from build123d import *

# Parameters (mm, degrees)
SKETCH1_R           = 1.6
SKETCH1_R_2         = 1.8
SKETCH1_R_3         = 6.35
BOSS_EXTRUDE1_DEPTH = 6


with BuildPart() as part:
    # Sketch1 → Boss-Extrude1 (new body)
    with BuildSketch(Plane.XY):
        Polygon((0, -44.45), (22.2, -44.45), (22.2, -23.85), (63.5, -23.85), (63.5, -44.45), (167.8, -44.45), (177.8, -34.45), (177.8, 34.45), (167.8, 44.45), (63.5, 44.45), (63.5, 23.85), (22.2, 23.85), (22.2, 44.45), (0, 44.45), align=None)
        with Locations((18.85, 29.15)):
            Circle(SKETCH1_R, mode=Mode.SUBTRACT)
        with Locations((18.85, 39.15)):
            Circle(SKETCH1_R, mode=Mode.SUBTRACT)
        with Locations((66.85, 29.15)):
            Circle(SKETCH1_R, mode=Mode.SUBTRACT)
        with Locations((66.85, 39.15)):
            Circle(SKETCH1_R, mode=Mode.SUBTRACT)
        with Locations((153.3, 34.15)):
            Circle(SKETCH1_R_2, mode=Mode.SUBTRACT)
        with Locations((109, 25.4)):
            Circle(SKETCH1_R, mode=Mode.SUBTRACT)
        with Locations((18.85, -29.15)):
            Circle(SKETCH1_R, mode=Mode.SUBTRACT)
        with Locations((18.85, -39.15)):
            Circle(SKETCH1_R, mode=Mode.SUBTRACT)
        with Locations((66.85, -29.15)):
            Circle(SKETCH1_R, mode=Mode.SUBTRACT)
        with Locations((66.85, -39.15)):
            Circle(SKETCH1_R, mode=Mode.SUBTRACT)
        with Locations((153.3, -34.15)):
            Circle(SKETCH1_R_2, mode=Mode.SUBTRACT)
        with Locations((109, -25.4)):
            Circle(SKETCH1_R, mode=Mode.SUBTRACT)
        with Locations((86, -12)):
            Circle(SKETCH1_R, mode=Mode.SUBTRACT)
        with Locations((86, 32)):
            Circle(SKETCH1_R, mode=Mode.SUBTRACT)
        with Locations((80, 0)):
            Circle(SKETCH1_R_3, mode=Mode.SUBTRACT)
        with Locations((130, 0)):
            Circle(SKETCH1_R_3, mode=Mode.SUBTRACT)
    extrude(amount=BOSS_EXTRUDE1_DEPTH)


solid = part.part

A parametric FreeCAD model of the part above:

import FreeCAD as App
import Part
import Sketcher

V = App.Vector
Q = App.Units.Quantity

doc = App.newDocument("Part")
body = doc.addObject("PartDesign::Body", "Body")

# Sketch on XY plane
sketch1 = body.newObject("Sketcher::SketchObject", "Sketch")
sketch1.AttachmentSupport = (doc.getObject("XY_Plane"), [""])
sketch1.MapMode = "FlatFace"
sketch1.addGeometry(Part.LineSegment(V(0, -44.45, 0), V(22.2, -44.45, 0)), False)
sketch1.addGeometry(Part.LineSegment(V(22.2, -44.45, 0), V(22.2, -23.85, 0)), False)
sketch1.addGeometry(Part.LineSegment(V(22.2, -23.85, 0), V(63.5, -23.85, 0)), False)
sketch1.addGeometry(Part.LineSegment(V(63.5, -23.85, 0), V(63.5, -44.45, 0)), False)
sketch1.addGeometry(Part.LineSegment(V(63.5, -44.45, 0), V(167.8, -44.45, 0)), False)
sketch1.addGeometry(Part.LineSegment(V(167.8, -44.45, 0), V(177.8, -34.45, 0)), False)
sketch1.addGeometry(Part.LineSegment(V(177.8, -34.45, 0), V(177.8, 34.45, 0)), False)
sketch1.addGeometry(Part.LineSegment(V(177.8, 34.45, 0), V(167.8, 44.45, 0)), False)
sketch1.addGeometry(Part.LineSegment(V(167.8, 44.45, 0), V(63.5, 44.45, 0)), False)
sketch1.addGeometry(Part.LineSegment(V(63.5, 44.45, 0), V(63.5, 23.85, 0)), False)
sketch1.addGeometry(Part.LineSegment(V(63.5, 23.85, 0), V(22.2, 23.85, 0)), False)
sketch1.addGeometry(Part.LineSegment(V(22.2, 23.85, 0), V(22.2, 44.45, 0)), False)
sketch1.addGeometry(Part.LineSegment(V(22.2, 44.45, 0), V(0, 44.45, 0)), False)
sketch1.addGeometry(Part.LineSegment(V(0, 44.45, 0), V(0, -44.45, 0)), False)
sketch1.addGeometry(Part.Circle(V(18.85, -39.15, 0), V(0, 0, 1), 1.6), False)
sketch1.addGeometry(Part.Circle(V(18.85, -29.15, 0), V(0, 0, 1), 1.6), False)
sketch1.addGeometry(Part.Circle(V(66.85, -39.15, 0), V(0, 0, 1), 1.6), False)
sketch1.addGeometry(Part.Circle(V(66.85, -29.15, 0), V(0, 0, 1), 1.6), False)
sketch1.addGeometry(Part.Circle(V(86, -12, 0), V(0, 0, 1), 1.6), False)
sketch1.addGeometry(Part.Circle(V(109, -25.4, 0), V(0, 0, 1), 1.6), False)
sketch1.addGeometry(Part.Circle(V(153.3, -34.15, 0), V(0, 0, 1), 1.8), False)
sketch1.addGeometry(Part.Circle(V(80, 0, 0), V(0, 0, 1), 6.35), False)
sketch1.addGeometry(Part.Circle(V(18.85, 29.15, 0), V(0, 0, 1), 1.6), False)
sketch1.addGeometry(Part.Circle(V(18.85, 39.15, 0), V(0, 0, 1), 1.6), False)
sketch1.addGeometry(Part.Circle(V(66.85, 29.15, 0), V(0, 0, 1), 1.6), False)
sketch1.addGeometry(Part.Circle(V(66.85, 39.15, 0), V(0, 0, 1), 1.6), False)
sketch1.addGeometry(Part.Circle(V(86, 32, 0), V(0, 0, 1), 1.6), False)
sketch1.addGeometry(Part.Circle(V(130, 0, 0), V(0, 0, 1), 6.35), False)
sketch1.addGeometry(Part.Circle(V(109, 25.4, 0), V(0, 0, 1), 1.6), False)
sketch1.addGeometry(Part.Circle(V(153.3, 34.15, 0), V(0, 0, 1), 1.8), False)
sketch1.addConstraint(Sketcher.Constraint("Coincident", 0, 2, 1, 1))
sketch1.addConstraint(Sketcher.Constraint("Coincident", 1, 2, 2, 1))
sketch1.addConstraint(Sketcher.Constraint("Coincident", 2, 2, 3, 1))
sketch1.addConstraint(Sketcher.Constraint("Coincident", 3, 2, 4, 1))
sketch1.addConstraint(Sketcher.Constraint("Coincident", 4, 2, 5, 1))
sketch1.addConstraint(Sketcher.Constraint("Coincident", 5, 2, 6, 1))
sketch1.addConstraint(Sketcher.Constraint("Coincident", 6, 2, 7, 1))
sketch1.addConstraint(Sketcher.Constraint("Coincident", 7, 2, 8, 1))
sketch1.addConstraint(Sketcher.Constraint("Coincident", 8, 2, 9, 1))
sketch1.addConstraint(Sketcher.Constraint("Coincident", 9, 2, 10, 1))
sketch1.addConstraint(Sketcher.Constraint("Coincident", 10, 2, 11, 1))
sketch1.addConstraint(Sketcher.Constraint("Coincident", 11, 2, 12, 1))
sketch1.addConstraint(Sketcher.Constraint("Coincident", 12, 2, 13, 1))
sketch1.addConstraint(Sketcher.Constraint("Coincident", 13, 2, 0, 1))
sketch1.addConstraint(Sketcher.Constraint("Horizontal", 0))
sketch1.addConstraint(Sketcher.Constraint("Vertical", 1))
sketch1.addConstraint(Sketcher.Constraint("Horizontal", 2))
sketch1.addConstraint(Sketcher.Constraint("Vertical", 3))
sketch1.addConstraint(Sketcher.Constraint("Horizontal", 4))
sketch1.addConstraint(Sketcher.Constraint("Vertical", 6))
sketch1.addConstraint(Sketcher.Constraint("Horizontal", 8))
sketch1.addConstraint(Sketcher.Constraint("Vertical", 9))
sketch1.addConstraint(Sketcher.Constraint("Horizontal", 10))
sketch1.addConstraint(Sketcher.Constraint("Vertical", 11))
sketch1.addConstraint(Sketcher.Constraint("Horizontal", 12))
sketch1.addConstraint(Sketcher.Constraint("Vertical", 13))
sketch1.addConstraint(Sketcher.Constraint("Equal", 14, 15))
sketch1.addConstraint(Sketcher.Constraint("Equal", 15, 16))
sketch1.addConstraint(Sketcher.Constraint("Equal", 16, 17))
sketch1.addConstraint(Sketcher.Constraint("Equal", 17, 18))
sketch1.addConstraint(Sketcher.Constraint("Equal", 18, 19))
sketch1.addConstraint(Sketcher.Constraint("Equal", 19, 22))
sketch1.addConstraint(Sketcher.Constraint("Equal", 22, 23))
sketch1.addConstraint(Sketcher.Constraint("Equal", 23, 24))
sketch1.addConstraint(Sketcher.Constraint("Equal", 24, 25))
sketch1.addConstraint(Sketcher.Constraint("Equal", 25, 26))
sketch1.addConstraint(Sketcher.Constraint("Equal", 21, 27))
sketch1.addConstraint(Sketcher.Constraint("Equal", 26, 28))
sketch1.addConstraint(Sketcher.Constraint("Equal", 20, 29))
sketch1.addConstraint(Sketcher.Constraint("Symmetric", 12, 2, 13, 2, -1, 1))
sketch1.addConstraint(Sketcher.Constraint("Symmetric", 15, 3, 22, 3, -1))
sketch1.addConstraint(Sketcher.Constraint("Symmetric", 14, 3, 23, 3, -1))
sketch1.addConstraint(Sketcher.Constraint("Symmetric", 17, 3, 24, 3, -1))
sketch1.addConstraint(Sketcher.Constraint("Symmetric", 16, 3, 25, 3, -1))
sketch1.addConstraint(Sketcher.Constraint("Symmetric", 19, 3, 28, 3, -1))
sketch1.addConstraint(Sketcher.Constraint("Symmetric", 20, 3, 29, 3, -1))
sketch1.addConstraint(Sketcher.Constraint("Symmetric", 4, 2, 7, 2, -1))
sketch1.addConstraint(Sketcher.Constraint("Symmetric", 2, 2, 9, 2, -1))
sketch1.addConstraint(Sketcher.Constraint("PointOnObject", 21, 3, -1))
sketch1.addConstraint(Sketcher.Constraint("PointOnObject", 27, 3, -1))
sketch1.addConstraint(Sketcher.Constraint("Perpendicular", 5, 7))
sketch1.addConstraint(Sketcher.Constraint("Horizontal", 14, 3, 16, 3))
sketch1.addConstraint(Sketcher.Constraint("Horizontal", 15, 3, 17, 3))
sketch1.addConstraint(Sketcher.Constraint("Horizontal", 0, 2, 3, 2))
sketch1.addConstraint(Sketcher.Constraint("Vertical", 14, 3, 15, 3))
sketch1.addConstraint(Sketcher.Constraint("Vertical", 16, 3, 17, 3))
sketch1.addConstraint(Sketcher.Constraint("Vertical", 18, 3, 26, 3))
sketch1.addConstraint(Sketcher.Constraint("Vertical", 1, 2, 10, 2))
sketch1.addConstraint(Sketcher.Constraint("Equal", 5, 7))
sketch1.addConstraint(Sketcher.Constraint("Diameter", 14, Q("3.2 mm")))
sketch1.addConstraint(Sketcher.Constraint("Diameter", 20, Q("3.6 mm")))
sketch1.addConstraint(Sketcher.Constraint("Diameter", 21, Q("12.7 mm")))
sketch1.addConstraint(Sketcher.Constraint("DistanceX", 0, 1, 0, 2, Q("22.2 mm")))
sketch1.addConstraint(Sketcher.Constraint("DistanceX", 2, 1, 2, 2, Q("41.3 mm")))
sketch1.addConstraint(Sketcher.Constraint("DistanceX", 4, 1, 4, 2, Q("104.3 mm")))
sketch1.addConstraint(Sketcher.Constraint("DistanceY", 1, 1, 1, 2, Q("20.6 mm")))
sketch1.addConstraint(Sketcher.Constraint("DistanceY", 6, 1, 6, 2, Q("68.9 mm")))
sketch1.addConstraint(Sketcher.Constraint("DistanceY", 13, 2, 13, 1, Q("88.9 mm")))
sketch1.addConstraint(Sketcher.Constraint("DistanceX", -1, 1, 18, 3, Q("86 mm")))
sketch1.addConstraint(Sketcher.Constraint("DistanceY", 18, 3, -1, 1, Q("12 mm")))
sketch1.addConstraint(Sketcher.Constraint("DistanceX", -1, 1, 19, 3, Q("109 mm")))
sketch1.addConstraint(Sketcher.Constraint("DistanceX", -1, 1, 21, 3, Q("80 mm")))
sketch1.addConstraint(Sketcher.Constraint("DistanceY", -1, 1, 26, 3, Q("32 mm")))
sketch1.addConstraint(Sketcher.Constraint("DistanceX", -1, 1, 27, 3, Q("130 mm")))
sketch1.addConstraint(Sketcher.Constraint("DistanceY", 14, 3, 15, 3, Q("10 mm")))
sketch1.addConstraint(Sketcher.Constraint("DistanceX", 14, 3, 16, 3, Q("48 mm")))
sketch1.addConstraint(Sketcher.Constraint("DistanceY", 16, 3, 20, 3, Q("5 mm")))
sketch1.addConstraint(Sketcher.Constraint("DistanceY", 19, 3, -1, 1, Q("25.4 mm")))
sketch1.addConstraint(Sketcher.Constraint("DistanceX", -1, 1, 20, 3, Q("153.3 mm")))
sketch1.addConstraint(Sketcher.Constraint("DistanceY", 15, 3, 22, 3, Q("58.3 mm")))
sketch1.addConstraint(Sketcher.Constraint("DistanceX", -1, 1, 14, 3, Q("18.85 mm")))
pad1 = body.newObject("PartDesign::Pad", "Pad")
pad1.Profile = sketch1
pad1.Length = 6

doc.recompute()
